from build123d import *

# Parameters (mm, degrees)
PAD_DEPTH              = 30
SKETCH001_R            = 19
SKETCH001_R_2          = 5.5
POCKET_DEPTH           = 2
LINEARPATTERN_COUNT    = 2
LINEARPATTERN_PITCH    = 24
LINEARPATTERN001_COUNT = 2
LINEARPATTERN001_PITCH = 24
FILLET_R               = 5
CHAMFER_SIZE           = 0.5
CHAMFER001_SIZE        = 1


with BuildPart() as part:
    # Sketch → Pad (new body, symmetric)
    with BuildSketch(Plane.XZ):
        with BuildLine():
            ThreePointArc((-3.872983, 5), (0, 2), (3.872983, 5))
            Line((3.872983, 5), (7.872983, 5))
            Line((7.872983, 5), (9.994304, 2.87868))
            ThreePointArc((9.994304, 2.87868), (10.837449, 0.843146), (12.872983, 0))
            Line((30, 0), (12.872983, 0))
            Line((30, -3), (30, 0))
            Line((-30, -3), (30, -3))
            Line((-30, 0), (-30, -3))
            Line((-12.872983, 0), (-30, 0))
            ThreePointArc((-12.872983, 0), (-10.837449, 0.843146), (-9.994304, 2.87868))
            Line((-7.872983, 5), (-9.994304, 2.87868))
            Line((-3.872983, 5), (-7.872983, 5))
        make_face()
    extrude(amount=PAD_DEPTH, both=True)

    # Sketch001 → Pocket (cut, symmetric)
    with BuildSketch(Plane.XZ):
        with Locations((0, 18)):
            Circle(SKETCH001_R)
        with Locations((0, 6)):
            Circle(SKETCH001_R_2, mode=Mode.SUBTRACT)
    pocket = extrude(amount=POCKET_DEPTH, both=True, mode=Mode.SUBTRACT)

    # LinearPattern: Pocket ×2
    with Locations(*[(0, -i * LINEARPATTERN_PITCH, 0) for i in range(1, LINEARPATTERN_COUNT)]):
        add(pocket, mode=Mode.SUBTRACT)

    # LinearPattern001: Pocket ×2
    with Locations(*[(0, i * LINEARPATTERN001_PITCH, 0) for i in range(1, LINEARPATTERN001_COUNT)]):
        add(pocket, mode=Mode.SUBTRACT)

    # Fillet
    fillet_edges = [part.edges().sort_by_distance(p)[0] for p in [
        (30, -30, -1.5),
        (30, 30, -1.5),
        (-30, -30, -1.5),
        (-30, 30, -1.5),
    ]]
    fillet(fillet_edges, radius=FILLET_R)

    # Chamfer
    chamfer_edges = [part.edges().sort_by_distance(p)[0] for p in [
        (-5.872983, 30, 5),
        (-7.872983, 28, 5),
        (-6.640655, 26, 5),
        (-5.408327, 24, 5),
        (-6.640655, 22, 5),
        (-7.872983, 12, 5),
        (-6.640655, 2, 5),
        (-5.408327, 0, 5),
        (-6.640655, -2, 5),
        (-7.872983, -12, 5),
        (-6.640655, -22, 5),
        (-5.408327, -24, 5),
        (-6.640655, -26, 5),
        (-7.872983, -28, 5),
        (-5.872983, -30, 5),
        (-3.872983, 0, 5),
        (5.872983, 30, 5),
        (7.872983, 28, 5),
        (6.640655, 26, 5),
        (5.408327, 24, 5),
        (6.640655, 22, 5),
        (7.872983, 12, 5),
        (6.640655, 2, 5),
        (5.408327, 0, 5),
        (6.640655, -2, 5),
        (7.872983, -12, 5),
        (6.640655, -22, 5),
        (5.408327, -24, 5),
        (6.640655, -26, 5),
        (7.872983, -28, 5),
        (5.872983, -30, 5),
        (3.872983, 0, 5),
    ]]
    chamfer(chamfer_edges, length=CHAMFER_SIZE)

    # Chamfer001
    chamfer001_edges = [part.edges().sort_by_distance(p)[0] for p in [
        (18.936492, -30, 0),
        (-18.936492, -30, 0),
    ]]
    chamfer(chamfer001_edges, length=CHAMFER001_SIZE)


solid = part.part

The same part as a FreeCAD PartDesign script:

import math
import FreeCAD as App
import Part
import Sketcher
from FreeCAD import Vector


def edges_at(feature, points):
    """Names of the edges that pass closest to the given points."""
    edges = feature.Shape.Edges
    near = lambda p: min(range(len(edges)), key=lambda i: edges[i].distToShape(Part.Vertex(*p))[0])
    return sorted({f"Edge{near(p) + 1}" for p in points})

doc = App.newDocument("Part")
body = doc.addObject("PartDesign::Body", "Body")

# Sketch on XZ plane
sketch1 = body.newObject("Sketcher::SketchObject", "Sketch")
sketch1.AttachmentSupport = (doc.getObject("XZ_Plane"), [""])
sketch1.MapMode = "FlatFace"
sketch1.addGeometry(Part.ArcOfCircle(Part.Circle(Vector(0, 6, 0), Vector(0, 0, 1), 4), math.radians(-166), math.radians(-14)), False)
sketch1.addGeometry(Part.LineSegment(Vector(-3.9, 5, 0), Vector(-7.9, 5, 0)), False)
sketch1.addGeometry(Part.LineSegment(Vector(-7.9, 5, 0), Vector(-10, 2.9, 0)), False)
sketch1.addGeometry(Part.ArcOfCircle(Part.Circle(Vector(-12.9, 2.9, 0), Vector(0, 0, 1), 2.9), math.radians(-90), math.radians(0)), False)
sketch1.addGeometry(Part.LineSegment(Vector(-12.9, 0, 0), Vector(-30, 0, 0)), False)
sketch1.addGeometry(Part.LineSegment(Vector(-30, 0, 0), Vector(-30, -3, 0)), False)
sketch1.addGeometry(Part.LineSegment(Vector(-30, -3, 0), Vector(30, -3, 0)), False)
sketch1.addGeometry(Part.LineSegment(Vector(30, -3, 0), Vector(30, 0, 0)), False)
sketch1.addGeometry(Part.LineSegment(Vector(30, 0, 0), Vector(12.9, 0, 0)), False)
sketch1.addGeometry(Part.ArcOfCircle(Part.Circle(Vector(12.9, 2.9, 0), Vector(0, 0, 1), 2.9), math.radians(180), math.radians(270)), False)
sketch1.addGeometry(Part.LineSegment(Vector(10, 2.9, 0), Vector(7.9, 5, 0)), False)
sketch1.addGeometry(Part.LineSegment(Vector(7.9, 5, 0), Vector(3.9, 5, 0)), False)
sketch1.addConstraint(Sketcher.Constraint("Coincident", 0, 1, 1, 1))
sketch1.addConstraint(Sketcher.Constraint("Coincident", 1, 2, 2, 1))
sketch1.addConstraint(Sketcher.Constraint("Coincident", 2, 2, 3, 2))
sketch1.addConstraint(Sketcher.Constraint("Tangent", 3, 1, 4, 1))
sketch1.addConstraint(Sketcher.Constraint("Coincident", 4, 2, 5, 1))
sketch1.addConstraint(Sketcher.Constraint("Coincident", 5, 2, 6, 1))
sketch1.addConstraint(Sketcher.Constraint("Coincident", 6, 2, 7, 1))
sketch1.addConstraint(Sketcher.Constraint("Coincident", 7, 2, 8, 1))
sketch1.addConstraint(Sketcher.Constraint("Tangent", 8, 2, 9, 2))
sketch1.addConstraint(Sketcher.Constraint("Coincident", 9, 1, 10, 1))
sketch1.addConstraint(Sketcher.Constraint("Coincident", 10, 2, 11, 1))
sketch1.addConstraint(Sketcher.Constraint("Coincident", 11, 2, 0, 2))
sketch1.addConstraint(Sketcher.Constraint("Horizontal", 1))
sketch1.addConstraint(Sketcher.Constraint("Horizontal", 4))
sketch1.addConstraint(Sketcher.Constraint("Vertical", 5))
sketch1.addConstraint(Sketcher.Constraint("Horizontal", 6))
sketch1.addConstraint(Sketcher.Constraint("Vertical", 7))
sketch1.addConstraint(Sketcher.Constraint("Horizontal", 8))
sketch1.addConstraint(Sketcher.Constraint("Horizontal", 11))
sketch1.addConstraint(Sketcher.Constraint("Equal", 3, 9))
sketch1.addConstraint(Sketcher.Constraint("Symmetric", 4, 2, 7, 2, -1, 1))
sketch1.addConstraint(Sketcher.Constraint("Symmetric", 3, 3, 9, 3, -2))
sketch1.addConstraint(Sketcher.Constraint("Symmetric", 1, 2, 10, 2, -2))
sketch1.addConstraint(Sketcher.Constraint("PointOnObject", 0, 3, -2))
sketch1.addConstraint(Sketcher.Constraint("Perpendicular", 2, 10))
sketch1.addConstraint(Sketcher.Constraint("Horizontal", 9, 3, 2, 2))
sketch1.addConstraint(Sketcher.Constraint("Horizontal", 2, 2, 9, 1))
sketch1.addConstraint(Sketcher.Constraint("Radius", 0, 4.0))
sketch1.addConstraint(Sketcher.Constraint("DistanceX", 1, 2, 1, 1, 4.0))
sketch1.addConstraint(Sketcher.Constraint("DistanceX", 6, 1, 6, 2, 60.0))
sketch1.addConstraint(Sketcher.Constraint("DistanceY", 5, 2, 5, 1, 3.0))
sketch1.addConstraint(Sketcher.Constraint("Distance", 2, 3.0))
sketch1.addConstraint(Sketcher.Constraint("DistanceY", -1, 1, 0, 3, 6.0))
sketch1.addConstraint(Sketcher.Constraint("DistanceY", -1, 1, 0, 1, 5.0))
pad1 = body.newObject("PartDesign::Pad", "Pad")
pad1.Profile = sketch1
pad1.Length = 60
pad1.Midplane = True

# Sketch on XZ plane
sketch2 = body.newObject("Sketcher::SketchObject", "Sketch001")
sketch2.AttachmentSupport = (doc.getObject("XZ_Plane"), [""])
sketch2.MapMode = "FlatFace"
sketch2.addGeometry(Part.Circle(Vector(0, 18, 0), Vector(0, 0, 1), 19), False)
sketch2.addGeometry(Part.Circle(Vector(0, 6, 0), Vector(0, 0, 1), 6), False)
sketch2.addConstraint(Sketcher.Constraint("PointOnObject", 0, 3, -2))
sketch2.addConstraint(Sketcher.Constraint("PointOnObject", 1, 3, -2))
sketch2.addConstraint(Sketcher.Constraint("Diameter", 0, 38.0))
sketch2.addConstraint(Sketcher.Constraint("Diameter", 1, 11.0))
sketch2.addConstraint(Sketcher.Constraint("DistanceY", -1, 1, 0, 3, 18.0))
sketch2.addConstraint(Sketcher.Constraint("DistanceY", -1, 1, 1, 3, 6.0))
pocket1 = body.newObject("PartDesign::Pocket", "Pocket")
pocket1.Profile = sketch2
pocket1.Length = 4
pocket1.Midplane = True
doc.recompute()

linearpattern = body.newObject("PartDesign::LinearPattern", "LinearPattern")
linearpattern.Originals = [pocket1]
linearpattern.Direction = (doc.getObject("Y_Axis"), [""])
linearpattern.Mode = "offset"
linearpattern.Offset = 24
linearpattern.Occurrences = 2
linearpattern.Reversed = True
body.Tip = linearpattern
doc.recompute()

linearpattern2 = body.newObject("PartDesign::LinearPattern", "LinearPattern001")
linearpattern2.Originals = [pocket1]
linearpattern2.Direction = (doc.getObject("Y_Axis"), [""])
linearpattern2.Mode = "offset"
linearpattern2.Offset = 24
linearpattern2.Occurrences = 2
body.Tip = linearpattern2
doc.recompute()

fillet = body.newObject("PartDesign::Fillet", "Fillet")
fillet.Base = (linearpattern2, edges_at(linearpattern2, [
    (30, -30, -1.5),
    (30, 30, -1.5),
    (-30, -30, -1.5),
    (-30, 30, -1.5),
]))
fillet.Radius = 5
doc.recompute()

chamfer = body.newObject("PartDesign::Chamfer", "Chamfer")
chamfer.Base = (fillet, edges_at(fillet, [
    (-5.873, 30, 5),
    (-7.873, 28, 5),
    (-6.641, 26, 5),
    (-5.408, 24, 5),
    (-6.641, 22, 5),
    (-7.873, 12, 5),
    (-6.641, 2, 5),
    (-5.408, 0, 5),
    (-6.641, -2, 5),
    (-7.873, -12, 5),
    (-6.641, -22, 5),
    (-5.408, -24, 5),
    (-6.641, -26, 5),
    (-7.873, -28, 5),
    (-5.873, -30, 5),
    (-3.873, 0, 5),
    (5.873, 30, 5),
    (7.873, 28, 5),
    (6.641, 26, 5),
    (5.408, 24, 5),
    (6.641, 22, 5),
    (7.873, 12, 5),
    (6.641, 2, 5),
    (5.408, 0, 5),
    (6.641, -2, 5),
    (7.873, -12, 5),
    (6.641, -22, 5),
    (5.408, -24, 5),
    (6.641, -26, 5),
    (7.873, -28, 5),
    (5.873, -30, 5),
    (3.873, 0, 5),
]))
chamfer.Size = 0.5
doc.recompute()

chamfer2 = body.newObject("PartDesign::Chamfer", "Chamfer001")
chamfer2.Base = (chamfer, edges_at(chamfer, [(18.936, -30, 0), (-18.936, -30, 0)]))
chamfer2.Size = 1

doc.recompute()
